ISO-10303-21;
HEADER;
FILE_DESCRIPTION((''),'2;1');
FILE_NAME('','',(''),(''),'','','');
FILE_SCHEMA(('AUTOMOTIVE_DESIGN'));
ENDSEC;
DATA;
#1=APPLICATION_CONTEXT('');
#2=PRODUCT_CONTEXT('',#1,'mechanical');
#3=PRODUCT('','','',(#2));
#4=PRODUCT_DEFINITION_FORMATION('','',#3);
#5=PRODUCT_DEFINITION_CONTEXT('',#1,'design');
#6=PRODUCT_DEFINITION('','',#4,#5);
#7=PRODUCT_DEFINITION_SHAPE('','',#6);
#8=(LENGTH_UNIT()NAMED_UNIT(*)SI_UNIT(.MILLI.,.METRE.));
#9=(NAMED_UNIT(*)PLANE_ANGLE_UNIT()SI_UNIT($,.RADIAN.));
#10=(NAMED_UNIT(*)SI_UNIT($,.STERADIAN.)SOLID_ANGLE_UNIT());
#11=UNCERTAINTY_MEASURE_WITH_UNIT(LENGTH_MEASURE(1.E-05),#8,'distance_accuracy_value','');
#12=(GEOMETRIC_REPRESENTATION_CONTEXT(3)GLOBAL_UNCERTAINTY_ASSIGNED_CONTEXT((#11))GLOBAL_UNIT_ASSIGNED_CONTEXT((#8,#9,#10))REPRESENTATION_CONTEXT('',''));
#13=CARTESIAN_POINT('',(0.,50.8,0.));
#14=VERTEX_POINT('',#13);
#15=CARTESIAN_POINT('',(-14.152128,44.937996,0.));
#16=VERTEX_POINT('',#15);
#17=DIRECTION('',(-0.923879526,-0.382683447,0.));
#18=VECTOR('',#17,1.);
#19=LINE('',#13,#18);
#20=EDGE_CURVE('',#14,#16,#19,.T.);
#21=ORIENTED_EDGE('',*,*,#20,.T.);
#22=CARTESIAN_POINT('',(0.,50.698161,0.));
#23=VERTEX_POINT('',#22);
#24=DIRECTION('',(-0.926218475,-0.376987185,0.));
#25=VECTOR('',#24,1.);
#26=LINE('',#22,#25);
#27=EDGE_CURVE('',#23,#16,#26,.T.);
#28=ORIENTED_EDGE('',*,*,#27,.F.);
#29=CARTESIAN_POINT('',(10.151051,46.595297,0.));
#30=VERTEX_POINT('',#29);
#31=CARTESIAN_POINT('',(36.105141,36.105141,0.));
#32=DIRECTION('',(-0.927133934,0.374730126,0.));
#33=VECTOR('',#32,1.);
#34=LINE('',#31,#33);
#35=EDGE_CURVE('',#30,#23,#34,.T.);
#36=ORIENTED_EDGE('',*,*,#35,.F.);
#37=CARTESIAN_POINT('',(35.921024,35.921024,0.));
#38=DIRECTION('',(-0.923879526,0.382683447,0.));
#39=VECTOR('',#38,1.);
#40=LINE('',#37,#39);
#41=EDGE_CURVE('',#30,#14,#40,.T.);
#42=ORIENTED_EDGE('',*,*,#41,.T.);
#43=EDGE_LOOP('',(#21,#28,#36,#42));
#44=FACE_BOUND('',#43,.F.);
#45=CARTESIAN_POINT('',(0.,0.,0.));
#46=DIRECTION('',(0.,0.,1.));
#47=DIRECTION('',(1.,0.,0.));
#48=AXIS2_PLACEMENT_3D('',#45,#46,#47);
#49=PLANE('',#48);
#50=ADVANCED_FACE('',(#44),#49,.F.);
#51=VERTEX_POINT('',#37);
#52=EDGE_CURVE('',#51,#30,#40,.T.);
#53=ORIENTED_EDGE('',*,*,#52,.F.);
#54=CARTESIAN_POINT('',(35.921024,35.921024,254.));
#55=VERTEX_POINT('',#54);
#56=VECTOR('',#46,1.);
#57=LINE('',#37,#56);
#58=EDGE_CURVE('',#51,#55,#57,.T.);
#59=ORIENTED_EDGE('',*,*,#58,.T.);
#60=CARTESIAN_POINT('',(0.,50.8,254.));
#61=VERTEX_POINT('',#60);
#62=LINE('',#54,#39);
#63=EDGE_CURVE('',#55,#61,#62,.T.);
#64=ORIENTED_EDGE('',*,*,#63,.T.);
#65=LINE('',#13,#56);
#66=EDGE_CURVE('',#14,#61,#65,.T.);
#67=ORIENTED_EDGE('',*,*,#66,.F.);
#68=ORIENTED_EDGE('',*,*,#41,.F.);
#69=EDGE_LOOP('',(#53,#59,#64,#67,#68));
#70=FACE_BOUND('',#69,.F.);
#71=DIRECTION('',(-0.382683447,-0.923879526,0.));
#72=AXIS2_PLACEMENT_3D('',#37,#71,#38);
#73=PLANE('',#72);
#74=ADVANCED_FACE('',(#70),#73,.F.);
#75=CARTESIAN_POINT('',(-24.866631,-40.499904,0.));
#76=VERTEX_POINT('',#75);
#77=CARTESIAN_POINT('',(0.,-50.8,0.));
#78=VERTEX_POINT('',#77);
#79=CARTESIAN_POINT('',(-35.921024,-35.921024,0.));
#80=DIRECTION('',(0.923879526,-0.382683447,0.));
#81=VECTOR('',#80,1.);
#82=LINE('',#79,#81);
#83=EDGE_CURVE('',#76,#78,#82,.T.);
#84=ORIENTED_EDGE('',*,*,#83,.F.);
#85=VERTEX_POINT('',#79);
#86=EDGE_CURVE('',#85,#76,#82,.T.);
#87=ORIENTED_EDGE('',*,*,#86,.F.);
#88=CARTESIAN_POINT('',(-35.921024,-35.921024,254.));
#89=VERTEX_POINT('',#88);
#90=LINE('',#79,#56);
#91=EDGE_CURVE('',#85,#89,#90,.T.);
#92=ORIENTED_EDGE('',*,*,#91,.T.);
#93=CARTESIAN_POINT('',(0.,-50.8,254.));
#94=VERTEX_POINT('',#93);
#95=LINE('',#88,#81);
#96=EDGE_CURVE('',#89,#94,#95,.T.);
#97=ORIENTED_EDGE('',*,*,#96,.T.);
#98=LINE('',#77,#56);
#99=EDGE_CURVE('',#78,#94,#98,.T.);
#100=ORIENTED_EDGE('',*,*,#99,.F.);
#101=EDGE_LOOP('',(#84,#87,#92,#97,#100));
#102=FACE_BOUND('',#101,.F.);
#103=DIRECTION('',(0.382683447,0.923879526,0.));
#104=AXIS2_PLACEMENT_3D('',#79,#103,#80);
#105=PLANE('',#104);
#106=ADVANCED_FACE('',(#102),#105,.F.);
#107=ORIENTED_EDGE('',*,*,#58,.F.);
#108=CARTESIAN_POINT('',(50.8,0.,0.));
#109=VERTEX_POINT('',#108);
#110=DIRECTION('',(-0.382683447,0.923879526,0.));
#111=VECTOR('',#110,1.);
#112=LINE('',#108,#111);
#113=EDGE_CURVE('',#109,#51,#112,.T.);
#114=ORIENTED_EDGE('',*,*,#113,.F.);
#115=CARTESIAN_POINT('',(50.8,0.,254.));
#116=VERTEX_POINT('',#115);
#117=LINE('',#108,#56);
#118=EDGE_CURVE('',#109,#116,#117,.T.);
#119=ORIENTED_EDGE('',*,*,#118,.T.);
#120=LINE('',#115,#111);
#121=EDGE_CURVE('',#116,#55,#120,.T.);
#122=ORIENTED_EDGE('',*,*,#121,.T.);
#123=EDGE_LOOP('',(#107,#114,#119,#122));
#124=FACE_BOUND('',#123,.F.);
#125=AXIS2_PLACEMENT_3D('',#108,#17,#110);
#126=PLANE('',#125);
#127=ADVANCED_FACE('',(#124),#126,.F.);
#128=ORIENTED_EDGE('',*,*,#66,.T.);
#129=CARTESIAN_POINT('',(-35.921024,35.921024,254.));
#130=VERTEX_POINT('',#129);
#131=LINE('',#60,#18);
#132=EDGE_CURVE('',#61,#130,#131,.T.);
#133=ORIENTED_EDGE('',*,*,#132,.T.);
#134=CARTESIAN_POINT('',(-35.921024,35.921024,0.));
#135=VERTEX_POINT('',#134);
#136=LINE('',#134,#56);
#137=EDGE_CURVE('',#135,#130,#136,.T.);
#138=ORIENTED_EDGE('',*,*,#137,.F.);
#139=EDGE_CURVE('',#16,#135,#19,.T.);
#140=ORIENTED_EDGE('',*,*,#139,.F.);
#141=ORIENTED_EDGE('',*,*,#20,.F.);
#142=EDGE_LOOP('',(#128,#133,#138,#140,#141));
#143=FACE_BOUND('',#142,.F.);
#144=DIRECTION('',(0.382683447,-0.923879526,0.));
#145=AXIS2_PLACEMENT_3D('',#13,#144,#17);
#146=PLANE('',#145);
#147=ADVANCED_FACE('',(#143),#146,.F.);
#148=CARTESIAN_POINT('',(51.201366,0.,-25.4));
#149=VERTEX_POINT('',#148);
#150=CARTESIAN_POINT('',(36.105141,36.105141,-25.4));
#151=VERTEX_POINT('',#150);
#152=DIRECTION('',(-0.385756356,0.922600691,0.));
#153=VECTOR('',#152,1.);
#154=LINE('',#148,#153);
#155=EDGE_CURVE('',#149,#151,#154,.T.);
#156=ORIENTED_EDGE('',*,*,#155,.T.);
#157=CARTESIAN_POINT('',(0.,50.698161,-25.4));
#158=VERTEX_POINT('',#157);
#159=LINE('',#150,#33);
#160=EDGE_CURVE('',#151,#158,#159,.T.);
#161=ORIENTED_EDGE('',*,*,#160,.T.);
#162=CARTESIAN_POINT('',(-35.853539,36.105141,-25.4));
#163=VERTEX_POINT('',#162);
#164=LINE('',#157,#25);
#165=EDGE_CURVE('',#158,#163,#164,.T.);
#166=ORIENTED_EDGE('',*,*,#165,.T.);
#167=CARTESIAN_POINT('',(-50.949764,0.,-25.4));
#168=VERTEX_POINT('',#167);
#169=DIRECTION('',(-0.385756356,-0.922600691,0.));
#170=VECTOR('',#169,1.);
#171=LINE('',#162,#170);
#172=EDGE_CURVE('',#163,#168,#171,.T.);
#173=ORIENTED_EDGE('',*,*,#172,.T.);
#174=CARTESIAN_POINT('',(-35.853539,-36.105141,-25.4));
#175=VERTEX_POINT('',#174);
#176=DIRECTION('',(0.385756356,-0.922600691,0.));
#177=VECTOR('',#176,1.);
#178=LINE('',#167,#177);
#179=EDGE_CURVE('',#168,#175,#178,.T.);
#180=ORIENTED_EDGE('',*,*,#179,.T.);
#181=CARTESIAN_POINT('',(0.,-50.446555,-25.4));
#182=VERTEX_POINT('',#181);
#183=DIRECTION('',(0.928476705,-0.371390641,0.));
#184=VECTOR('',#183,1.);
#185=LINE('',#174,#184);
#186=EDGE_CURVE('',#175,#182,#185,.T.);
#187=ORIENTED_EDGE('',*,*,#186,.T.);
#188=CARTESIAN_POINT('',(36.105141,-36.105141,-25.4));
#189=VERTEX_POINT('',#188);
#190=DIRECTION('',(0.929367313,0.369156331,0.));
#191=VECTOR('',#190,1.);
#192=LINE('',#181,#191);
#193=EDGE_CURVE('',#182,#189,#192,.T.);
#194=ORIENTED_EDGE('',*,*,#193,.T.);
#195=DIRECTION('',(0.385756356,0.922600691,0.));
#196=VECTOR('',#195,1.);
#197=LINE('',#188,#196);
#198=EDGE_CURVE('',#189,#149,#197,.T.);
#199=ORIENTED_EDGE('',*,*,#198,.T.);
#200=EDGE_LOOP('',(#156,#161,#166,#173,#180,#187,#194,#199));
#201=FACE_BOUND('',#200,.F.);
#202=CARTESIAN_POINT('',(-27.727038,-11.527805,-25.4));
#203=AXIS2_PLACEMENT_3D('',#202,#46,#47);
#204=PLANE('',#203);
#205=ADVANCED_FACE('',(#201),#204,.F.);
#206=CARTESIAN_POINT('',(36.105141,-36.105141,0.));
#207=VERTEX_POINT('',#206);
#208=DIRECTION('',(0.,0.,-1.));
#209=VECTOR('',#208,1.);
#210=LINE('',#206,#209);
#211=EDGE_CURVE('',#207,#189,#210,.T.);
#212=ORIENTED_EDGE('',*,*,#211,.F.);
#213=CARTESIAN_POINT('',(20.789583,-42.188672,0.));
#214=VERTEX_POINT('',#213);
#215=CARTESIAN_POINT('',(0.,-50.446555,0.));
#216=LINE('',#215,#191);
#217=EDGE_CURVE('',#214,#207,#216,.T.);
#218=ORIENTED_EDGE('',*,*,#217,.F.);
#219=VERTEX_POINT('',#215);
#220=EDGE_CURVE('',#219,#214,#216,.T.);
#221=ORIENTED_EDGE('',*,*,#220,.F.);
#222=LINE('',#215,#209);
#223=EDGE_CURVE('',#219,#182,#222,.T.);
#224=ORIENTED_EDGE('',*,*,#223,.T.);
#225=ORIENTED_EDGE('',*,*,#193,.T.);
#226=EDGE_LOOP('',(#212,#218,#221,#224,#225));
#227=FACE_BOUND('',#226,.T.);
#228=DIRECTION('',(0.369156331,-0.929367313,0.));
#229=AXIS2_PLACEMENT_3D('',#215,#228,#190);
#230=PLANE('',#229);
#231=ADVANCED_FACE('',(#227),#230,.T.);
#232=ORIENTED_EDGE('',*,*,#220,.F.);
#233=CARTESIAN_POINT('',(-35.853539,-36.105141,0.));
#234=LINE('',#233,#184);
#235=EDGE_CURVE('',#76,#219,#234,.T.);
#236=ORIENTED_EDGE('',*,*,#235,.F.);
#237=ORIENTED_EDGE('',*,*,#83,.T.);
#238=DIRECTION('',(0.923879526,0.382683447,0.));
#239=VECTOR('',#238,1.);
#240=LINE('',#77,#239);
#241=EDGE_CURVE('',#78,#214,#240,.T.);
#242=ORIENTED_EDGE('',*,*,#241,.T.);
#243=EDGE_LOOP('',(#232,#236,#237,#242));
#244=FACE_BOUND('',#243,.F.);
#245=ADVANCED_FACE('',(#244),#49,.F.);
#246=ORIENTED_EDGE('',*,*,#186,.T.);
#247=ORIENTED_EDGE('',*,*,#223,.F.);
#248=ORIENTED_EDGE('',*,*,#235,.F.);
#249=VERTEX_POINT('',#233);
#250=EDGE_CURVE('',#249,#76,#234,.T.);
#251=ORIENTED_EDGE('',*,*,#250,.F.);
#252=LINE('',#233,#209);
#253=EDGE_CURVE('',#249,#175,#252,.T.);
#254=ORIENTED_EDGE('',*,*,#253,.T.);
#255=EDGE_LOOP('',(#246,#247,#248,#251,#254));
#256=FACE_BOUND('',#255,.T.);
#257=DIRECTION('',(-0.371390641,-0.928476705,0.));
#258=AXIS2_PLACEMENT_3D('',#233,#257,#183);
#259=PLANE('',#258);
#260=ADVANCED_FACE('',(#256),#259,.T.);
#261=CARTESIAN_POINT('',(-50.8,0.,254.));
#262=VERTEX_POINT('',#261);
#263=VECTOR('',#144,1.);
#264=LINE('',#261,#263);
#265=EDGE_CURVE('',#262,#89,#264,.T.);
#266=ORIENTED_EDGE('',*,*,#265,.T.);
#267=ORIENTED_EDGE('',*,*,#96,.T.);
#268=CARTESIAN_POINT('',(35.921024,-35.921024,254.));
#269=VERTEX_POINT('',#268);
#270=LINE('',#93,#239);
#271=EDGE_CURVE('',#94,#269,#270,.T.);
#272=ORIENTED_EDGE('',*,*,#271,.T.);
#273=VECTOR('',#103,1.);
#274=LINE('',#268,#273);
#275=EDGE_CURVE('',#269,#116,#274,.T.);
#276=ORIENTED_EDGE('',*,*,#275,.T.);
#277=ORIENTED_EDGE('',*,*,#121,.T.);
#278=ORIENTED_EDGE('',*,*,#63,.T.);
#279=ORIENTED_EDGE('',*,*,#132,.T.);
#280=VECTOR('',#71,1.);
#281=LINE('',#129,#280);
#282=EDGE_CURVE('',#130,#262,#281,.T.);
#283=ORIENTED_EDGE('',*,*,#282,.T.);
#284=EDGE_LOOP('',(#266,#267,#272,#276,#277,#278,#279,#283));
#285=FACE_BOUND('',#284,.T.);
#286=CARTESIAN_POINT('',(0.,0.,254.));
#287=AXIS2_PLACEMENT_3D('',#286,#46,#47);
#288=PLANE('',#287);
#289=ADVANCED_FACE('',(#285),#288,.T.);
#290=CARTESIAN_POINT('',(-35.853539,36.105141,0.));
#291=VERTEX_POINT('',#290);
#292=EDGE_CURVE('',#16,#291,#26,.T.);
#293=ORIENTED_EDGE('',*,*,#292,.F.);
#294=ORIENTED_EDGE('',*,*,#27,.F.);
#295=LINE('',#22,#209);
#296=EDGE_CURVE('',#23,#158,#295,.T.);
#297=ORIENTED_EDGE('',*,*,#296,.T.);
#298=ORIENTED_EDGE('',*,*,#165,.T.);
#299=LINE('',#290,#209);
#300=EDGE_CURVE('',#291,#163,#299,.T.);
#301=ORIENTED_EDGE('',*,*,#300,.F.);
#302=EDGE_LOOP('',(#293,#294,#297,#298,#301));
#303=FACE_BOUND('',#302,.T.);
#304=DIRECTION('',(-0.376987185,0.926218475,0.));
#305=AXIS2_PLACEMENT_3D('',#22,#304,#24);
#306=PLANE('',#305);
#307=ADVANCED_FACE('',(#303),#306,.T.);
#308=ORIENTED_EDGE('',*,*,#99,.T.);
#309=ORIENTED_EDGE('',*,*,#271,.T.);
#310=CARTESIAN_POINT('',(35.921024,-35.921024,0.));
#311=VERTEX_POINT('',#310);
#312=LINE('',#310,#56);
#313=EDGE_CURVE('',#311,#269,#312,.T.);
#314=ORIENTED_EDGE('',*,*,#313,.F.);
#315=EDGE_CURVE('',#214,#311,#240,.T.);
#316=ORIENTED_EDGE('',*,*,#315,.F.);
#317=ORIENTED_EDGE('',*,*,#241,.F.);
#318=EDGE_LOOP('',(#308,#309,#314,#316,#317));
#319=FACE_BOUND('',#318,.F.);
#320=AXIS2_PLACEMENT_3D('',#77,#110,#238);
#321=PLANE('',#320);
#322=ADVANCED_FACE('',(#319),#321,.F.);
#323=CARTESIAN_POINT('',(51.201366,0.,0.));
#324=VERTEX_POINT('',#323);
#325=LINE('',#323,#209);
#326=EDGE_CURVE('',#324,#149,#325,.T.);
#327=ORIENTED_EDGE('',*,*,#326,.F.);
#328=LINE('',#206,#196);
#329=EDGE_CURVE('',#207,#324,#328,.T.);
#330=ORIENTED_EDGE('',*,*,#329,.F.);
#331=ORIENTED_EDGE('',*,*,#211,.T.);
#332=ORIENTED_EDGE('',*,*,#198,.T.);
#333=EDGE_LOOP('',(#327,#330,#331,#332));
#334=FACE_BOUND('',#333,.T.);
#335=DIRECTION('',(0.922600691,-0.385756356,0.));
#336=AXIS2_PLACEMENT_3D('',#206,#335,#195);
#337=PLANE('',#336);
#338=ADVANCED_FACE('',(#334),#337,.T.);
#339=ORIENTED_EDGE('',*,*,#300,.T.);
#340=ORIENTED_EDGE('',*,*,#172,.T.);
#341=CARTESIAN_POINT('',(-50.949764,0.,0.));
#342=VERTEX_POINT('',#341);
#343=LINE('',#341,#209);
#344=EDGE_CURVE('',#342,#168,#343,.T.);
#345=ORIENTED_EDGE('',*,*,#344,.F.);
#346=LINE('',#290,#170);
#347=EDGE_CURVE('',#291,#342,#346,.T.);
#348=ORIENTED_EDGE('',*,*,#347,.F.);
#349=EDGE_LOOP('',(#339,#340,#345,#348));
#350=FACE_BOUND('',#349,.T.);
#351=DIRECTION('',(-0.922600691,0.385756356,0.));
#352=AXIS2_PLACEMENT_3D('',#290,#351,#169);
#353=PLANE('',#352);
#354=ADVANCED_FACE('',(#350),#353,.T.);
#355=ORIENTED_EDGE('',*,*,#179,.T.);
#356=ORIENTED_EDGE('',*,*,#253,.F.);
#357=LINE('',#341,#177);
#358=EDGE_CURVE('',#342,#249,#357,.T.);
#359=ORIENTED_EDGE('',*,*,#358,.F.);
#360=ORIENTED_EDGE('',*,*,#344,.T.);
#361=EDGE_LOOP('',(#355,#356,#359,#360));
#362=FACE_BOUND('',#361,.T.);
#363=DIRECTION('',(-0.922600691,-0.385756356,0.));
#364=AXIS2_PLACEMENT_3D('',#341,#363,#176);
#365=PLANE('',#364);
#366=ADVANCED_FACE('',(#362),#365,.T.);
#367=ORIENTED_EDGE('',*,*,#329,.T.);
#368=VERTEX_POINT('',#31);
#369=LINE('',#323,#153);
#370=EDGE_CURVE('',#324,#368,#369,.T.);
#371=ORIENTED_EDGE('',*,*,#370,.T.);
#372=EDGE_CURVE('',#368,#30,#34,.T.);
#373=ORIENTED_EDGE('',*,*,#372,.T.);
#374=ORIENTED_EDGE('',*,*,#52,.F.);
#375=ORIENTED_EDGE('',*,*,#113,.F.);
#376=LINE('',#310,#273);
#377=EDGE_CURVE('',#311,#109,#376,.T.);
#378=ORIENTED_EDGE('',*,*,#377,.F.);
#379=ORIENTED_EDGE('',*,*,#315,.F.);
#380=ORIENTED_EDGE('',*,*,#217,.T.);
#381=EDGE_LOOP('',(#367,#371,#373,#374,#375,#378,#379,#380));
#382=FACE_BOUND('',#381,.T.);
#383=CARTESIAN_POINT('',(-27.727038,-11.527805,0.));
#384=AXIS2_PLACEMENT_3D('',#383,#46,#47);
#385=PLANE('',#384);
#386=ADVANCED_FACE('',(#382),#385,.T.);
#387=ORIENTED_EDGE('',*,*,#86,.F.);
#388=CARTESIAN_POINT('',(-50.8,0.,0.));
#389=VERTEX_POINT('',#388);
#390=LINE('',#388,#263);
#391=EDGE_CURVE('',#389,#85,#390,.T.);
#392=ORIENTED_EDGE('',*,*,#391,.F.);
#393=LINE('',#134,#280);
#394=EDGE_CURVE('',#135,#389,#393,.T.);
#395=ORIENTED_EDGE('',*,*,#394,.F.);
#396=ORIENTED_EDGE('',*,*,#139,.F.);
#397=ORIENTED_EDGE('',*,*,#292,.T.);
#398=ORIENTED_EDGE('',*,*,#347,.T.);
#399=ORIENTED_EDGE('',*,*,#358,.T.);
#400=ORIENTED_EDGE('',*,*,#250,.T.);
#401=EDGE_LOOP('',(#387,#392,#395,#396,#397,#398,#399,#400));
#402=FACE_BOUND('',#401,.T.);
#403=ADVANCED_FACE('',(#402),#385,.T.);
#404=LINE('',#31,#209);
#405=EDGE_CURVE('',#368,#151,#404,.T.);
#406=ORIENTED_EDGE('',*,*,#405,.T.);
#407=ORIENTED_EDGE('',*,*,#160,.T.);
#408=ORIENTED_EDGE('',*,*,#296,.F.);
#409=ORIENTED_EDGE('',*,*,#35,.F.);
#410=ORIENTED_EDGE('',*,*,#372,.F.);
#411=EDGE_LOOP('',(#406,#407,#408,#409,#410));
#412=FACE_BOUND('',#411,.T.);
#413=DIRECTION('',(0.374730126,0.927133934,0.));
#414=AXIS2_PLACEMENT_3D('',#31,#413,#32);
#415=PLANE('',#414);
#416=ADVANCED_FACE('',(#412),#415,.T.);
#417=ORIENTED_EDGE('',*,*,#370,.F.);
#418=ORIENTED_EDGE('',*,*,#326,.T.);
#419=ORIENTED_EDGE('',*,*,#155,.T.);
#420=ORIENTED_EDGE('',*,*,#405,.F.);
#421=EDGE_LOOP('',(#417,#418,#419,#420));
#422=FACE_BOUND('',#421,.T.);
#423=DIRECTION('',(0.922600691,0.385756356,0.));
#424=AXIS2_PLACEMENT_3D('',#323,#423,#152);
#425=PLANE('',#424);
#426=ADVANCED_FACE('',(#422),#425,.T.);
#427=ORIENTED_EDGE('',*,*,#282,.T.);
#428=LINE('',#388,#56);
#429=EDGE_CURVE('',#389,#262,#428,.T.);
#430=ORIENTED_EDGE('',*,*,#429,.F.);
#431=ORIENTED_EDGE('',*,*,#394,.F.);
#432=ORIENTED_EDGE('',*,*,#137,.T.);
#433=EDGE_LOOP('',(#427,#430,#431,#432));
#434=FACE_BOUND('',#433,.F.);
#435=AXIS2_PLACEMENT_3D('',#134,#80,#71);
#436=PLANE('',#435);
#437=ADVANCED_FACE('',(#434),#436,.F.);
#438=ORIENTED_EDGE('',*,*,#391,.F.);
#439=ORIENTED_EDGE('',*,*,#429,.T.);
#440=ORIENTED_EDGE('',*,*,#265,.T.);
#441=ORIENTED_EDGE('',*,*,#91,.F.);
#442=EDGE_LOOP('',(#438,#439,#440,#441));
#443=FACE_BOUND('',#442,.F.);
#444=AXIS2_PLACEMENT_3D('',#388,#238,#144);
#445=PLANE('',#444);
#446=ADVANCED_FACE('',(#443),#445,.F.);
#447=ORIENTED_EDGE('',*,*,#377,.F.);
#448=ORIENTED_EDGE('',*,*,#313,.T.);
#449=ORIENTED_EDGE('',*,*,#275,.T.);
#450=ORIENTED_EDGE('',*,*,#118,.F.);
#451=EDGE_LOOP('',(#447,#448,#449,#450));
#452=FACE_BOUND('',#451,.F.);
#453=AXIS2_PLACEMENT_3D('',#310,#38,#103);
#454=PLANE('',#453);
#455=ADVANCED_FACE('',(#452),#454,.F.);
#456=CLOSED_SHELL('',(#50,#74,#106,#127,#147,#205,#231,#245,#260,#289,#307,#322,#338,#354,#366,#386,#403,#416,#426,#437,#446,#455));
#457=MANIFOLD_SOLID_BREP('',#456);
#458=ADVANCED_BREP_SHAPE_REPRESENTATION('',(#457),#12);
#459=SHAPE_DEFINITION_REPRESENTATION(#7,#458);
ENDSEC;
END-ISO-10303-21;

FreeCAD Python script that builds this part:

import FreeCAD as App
import Part
import Sketcher

V = App.Vector
Q = App.Units.Quantity


def add_polygon(sketch, points):
    """Adds a closed chain of lines whose ends are joined by coincident constraints."""
    first, n = sketch.GeometryCount, len(points)
    for a, b in zip(points, points[1:] + points[:1]):
        sketch.addGeometry(Part.LineSegment(App.Vector(*a, 0), App.Vector(*b, 0)), False)
    for i in range(n):
        sketch.addConstraint(Sketcher.Constraint("Coincident", first + i, 2, first + (i + 1) % n, 1))

doc = App.newDocument("Part")
params = doc.addObject("Spreadsheet::Sheet", "Params")
for row, (alias, value) in enumerate([
    ("pad1_length", "10 in"),
    ("pad2_length", "1 in"),
], start=1):
    params.set(f"A{row}", alias)
    params.set(f"B{row}", "=" + value)
    params.setAlias(f"B{row}", alias)

body = doc.addObject("PartDesign::Body", "Body")

# Sketch on XY plane
sketch1 = doc.addObject("Sketcher::SketchObject", "Sketch")
body.addObject(sketch1)
sketch1.AttachmentSupport = (doc.XY_Plane, [""])
sketch1.MapMode = "FlatFace"
add_polygon(sketch1, [(35.921024, -35.921024), (50.8, 0), (35.921024, 35.921024), (0, 50.8), (-35.921024, 35.921024), (-50.8, 0), (-35.921024, -35.921024), (0, -50.8)])  # lines 0-7
sketch1.addConstraint(Sketcher.Constraint("Symmetric", 0, 2, 4, 2, -1, 1))
sketch1.addConstraint(Sketcher.Constraint("Symmetric", 1, 2, 5, 2, -1, 1))
sketch1.addConstraint(Sketcher.Constraint("Symmetric", 2, 2, 6, 2, -1, 1))
sketch1.addConstraint(Sketcher.Constraint("Symmetric", 3, 2, 7, 2, -1, 1))
sketch1.addConstraint(Sketcher.Constraint("Symmetric", 1, 2, 3, 2, -2))
sketch1.addConstraint(Sketcher.Constraint("PointOnObject", 0, 2, -1))
sketch1.addConstraint(Sketcher.Constraint("PointOnObject", 2, 2, -2))
sketch1.addConstraint(Sketcher.Constraint("Perpendicular", 0, 2))
sketch1.addConstraint(Sketcher.Constraint("Equal", 1, 2))
sketch1.addConstraint(Sketcher.Constraint("DistanceX", -1, 1, 0, 2, Q("2 in")))
sketch1.addConstraint(Sketcher.Constraint("Angle", 0, Q("67.499999 deg")))
pad1 = doc.addObject("PartDesign::Pad", "Pad")
body.addObject(pad1)
pad1.Profile = sketch1
pad1.setExpression("Length", "Params.pad1_length")

# Sketch on XY plane
sketch2 = doc.addObject("Sketcher::SketchObject", "Sketch001")
body.addObject(sketch2)
sketch2.AttachmentSupport = (doc.XY_Plane, [""])
sketch2.MapMode = "FlatFace"
add_polygon(sketch2, [(-50.949764, 0), (-35.853539, -36.105141), (0, -50.446555), (36.105141, -36.105141), (51.201366, 0), (36.105141, 36.105141), (0, 50.698161), (-35.853539, 36.105141)])  # lines 0-7
sketch2.addConstraint(Sketcher.Constraint("Symmetric", 2, 2, 4, 2, -1))
sketch2.addConstraint(Sketcher.Constraint("Symmetric", 0, 2, 6, 2, -1))
sketch2.addConstraint(Sketcher.Constraint("PointOnObject", 1, 2, -2))
sketch2.addConstraint(Sketcher.Constraint("PointOnObject", 3, 2, -1))
sketch2.addConstraint(Sketcher.Constraint("PointOnObject", 5, 2, -2))
sketch2.addConstraint(Sketcher.Constraint("PointOnObject", 7, 2, -1))
sketch2.addConstraint(Sketcher.Constraint("Parallel", 0, 4))
sketch2.addConstraint(Sketcher.Constraint("Horizontal", 0, 2, 2, 2))
sketch2.addConstraint(Sketcher.Constraint("Distance", 2, Q("38.849162 mm")))
sketch2.addConstraint(Sketcher.Constraint("Distance", 6, Q("38.709592 mm")))
sketch2.addConstraint(Sketcher.Constraint("DistanceX", 0, 2, -1, 1, Q("35.853539 mm")))
sketch2.addConstraint(Sketcher.Constraint("DistanceY", 0, 2, -1, 1, Q("36.105141 mm")))
sketch2.addConstraint(Sketcher.Constraint("DistanceX", -1, 1, 2, 2, Q("36.105141 mm")))
sketch2.addConstraint(Sketcher.Constraint("Distance", 0, Q("39.134093 mm")))
pad2 = doc.addObject("PartDesign::Pad", "Pad001")
body.addObject(pad2)
pad2.Profile = sketch2
pad2.setExpression("Length", "Params.pad2_length")
pad2.Reversed = True

doc.recompute()
